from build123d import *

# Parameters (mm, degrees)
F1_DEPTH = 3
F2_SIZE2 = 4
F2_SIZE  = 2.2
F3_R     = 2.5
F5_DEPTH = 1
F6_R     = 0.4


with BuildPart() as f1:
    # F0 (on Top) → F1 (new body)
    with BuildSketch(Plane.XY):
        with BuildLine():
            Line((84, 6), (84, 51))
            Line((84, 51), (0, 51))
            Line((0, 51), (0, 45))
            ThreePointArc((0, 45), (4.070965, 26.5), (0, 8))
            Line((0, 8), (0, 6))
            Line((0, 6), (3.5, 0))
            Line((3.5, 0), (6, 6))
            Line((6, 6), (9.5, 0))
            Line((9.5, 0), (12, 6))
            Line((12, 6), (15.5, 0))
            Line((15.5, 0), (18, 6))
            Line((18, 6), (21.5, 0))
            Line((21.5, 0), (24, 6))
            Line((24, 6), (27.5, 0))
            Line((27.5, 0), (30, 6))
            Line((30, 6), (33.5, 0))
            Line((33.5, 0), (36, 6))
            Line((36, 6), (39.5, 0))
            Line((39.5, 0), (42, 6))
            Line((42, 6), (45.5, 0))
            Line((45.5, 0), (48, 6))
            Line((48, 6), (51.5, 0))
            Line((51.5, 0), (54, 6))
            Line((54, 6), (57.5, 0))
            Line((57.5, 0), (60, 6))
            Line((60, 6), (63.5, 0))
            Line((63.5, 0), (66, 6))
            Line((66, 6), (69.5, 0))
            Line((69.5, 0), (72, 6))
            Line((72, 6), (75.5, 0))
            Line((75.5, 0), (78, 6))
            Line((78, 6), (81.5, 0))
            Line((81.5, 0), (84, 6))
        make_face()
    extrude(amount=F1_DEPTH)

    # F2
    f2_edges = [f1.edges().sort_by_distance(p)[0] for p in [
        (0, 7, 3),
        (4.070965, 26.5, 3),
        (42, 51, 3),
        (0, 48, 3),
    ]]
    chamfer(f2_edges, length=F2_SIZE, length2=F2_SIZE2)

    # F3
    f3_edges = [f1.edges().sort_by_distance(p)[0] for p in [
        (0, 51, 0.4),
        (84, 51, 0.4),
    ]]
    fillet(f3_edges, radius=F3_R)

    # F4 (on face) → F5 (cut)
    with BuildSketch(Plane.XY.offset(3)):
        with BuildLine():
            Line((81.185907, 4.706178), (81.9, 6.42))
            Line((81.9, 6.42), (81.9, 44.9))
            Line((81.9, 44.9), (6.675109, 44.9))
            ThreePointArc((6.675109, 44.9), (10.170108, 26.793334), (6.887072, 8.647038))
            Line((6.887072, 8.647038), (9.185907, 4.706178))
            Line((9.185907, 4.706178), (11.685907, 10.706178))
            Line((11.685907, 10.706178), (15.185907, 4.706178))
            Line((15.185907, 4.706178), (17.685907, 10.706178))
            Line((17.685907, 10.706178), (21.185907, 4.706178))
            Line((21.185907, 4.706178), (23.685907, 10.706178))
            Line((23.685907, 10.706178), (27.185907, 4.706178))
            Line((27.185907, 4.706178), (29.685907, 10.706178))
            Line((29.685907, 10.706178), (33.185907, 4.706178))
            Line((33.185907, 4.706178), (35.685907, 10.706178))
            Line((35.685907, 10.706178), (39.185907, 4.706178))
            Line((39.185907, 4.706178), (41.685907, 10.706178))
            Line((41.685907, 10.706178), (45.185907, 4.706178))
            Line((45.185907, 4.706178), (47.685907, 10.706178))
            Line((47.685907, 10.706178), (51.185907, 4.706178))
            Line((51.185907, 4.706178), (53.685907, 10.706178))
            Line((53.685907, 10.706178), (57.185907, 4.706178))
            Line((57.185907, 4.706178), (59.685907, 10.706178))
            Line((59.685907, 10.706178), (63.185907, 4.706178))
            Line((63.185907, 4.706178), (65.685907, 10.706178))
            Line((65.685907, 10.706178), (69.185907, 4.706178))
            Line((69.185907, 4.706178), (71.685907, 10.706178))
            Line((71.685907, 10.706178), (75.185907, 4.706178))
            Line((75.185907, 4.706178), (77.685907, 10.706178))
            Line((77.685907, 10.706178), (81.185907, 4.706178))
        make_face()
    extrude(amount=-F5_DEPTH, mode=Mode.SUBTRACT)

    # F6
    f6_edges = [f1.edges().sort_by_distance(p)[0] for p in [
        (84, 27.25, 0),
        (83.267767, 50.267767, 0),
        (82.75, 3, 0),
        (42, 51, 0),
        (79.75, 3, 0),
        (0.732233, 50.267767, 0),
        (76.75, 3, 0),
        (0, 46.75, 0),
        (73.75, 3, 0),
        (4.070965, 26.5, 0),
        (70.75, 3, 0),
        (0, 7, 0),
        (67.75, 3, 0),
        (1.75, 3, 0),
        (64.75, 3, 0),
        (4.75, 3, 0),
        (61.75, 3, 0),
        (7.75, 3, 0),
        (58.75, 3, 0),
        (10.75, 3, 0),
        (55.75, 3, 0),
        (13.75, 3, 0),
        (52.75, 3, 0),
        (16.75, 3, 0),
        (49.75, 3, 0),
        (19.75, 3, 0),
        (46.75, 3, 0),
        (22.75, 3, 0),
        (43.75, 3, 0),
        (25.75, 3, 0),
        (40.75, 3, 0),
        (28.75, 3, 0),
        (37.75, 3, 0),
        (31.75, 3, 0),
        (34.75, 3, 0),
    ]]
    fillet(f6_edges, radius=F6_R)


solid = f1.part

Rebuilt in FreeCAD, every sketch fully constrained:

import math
import FreeCAD as App
import Part
import Sketcher

V = App.Vector
Q = App.Units.Quantity


def edges_at(feature, points):
    """Names of the edges that pass closest to the given points."""
    edges = feature.Shape.Edges
    near = lambda p: min(range(len(edges)), key=lambda i: edges[i].distToShape(Part.Vertex(*p))[0])
    return sorted({f"Edge{near(p) + 1}" for p in points})

doc = App.newDocument("Part")
body = doc.addObject("PartDesign::Body", "Body")

# Sketch on XY plane
sketch1 = body.newObject("Sketcher::SketchObject", "Sketch")
sketch1.AttachmentSupport = (doc.getObject("XY_Plane"), [""])
sketch1.MapMode = "FlatFace"
sketch1.addGeometry(Part.LineSegment(V(84, 6, 0), V(84, 51, 0)), False)
sketch1.addGeometry(Part.LineSegment(V(84, 51, 0), V(0, 51, 0)), False)
sketch1.addGeometry(Part.LineSegment(V(0, 51, 0), V(0, 45, 0)), False)
sketch1.addGeometry(Part.ArcOfCircle(Part.Circle(V(-40, 26.5, 0), V(0, 0, 1), 44.1), math.radians(-25), math.radians(25)), False)
sketch1.addGeometry(Part.LineSegment(V(0, 8, 0), V(0, 6, 0)), False)
sketch1.addGeometry(Part.LineSegment(V(0, 6, 0), V(3.5, 0, 0)), False)
sketch1.addGeometry(Part.LineSegment(V(3.5, 0, 0), V(6, 6, 0)), False)
sketch1.addGeometry(Part.LineSegment(V(6, 6, 0), V(9.5, 0, 0)), False)
sketch1.addGeometry(Part.LineSegment(V(9.5, 0, 0), V(12, 6, 0)), False)
sketch1.addGeometry(Part.LineSegment(V(12, 6, 0), V(15.5, 0, 0)), False)
sketch1.addGeometry(Part.LineSegment(V(15.5, 0, 0), V(18, 6, 0)), False)
sketch1.addGeometry(Part.LineSegment(V(18, 6, 0), V(21.5, 0, 0)), False)
sketch1.addGeometry(Part.LineSegment(V(21.5, 0, 0), V(24, 6, 0)), False)
sketch1.addGeometry(Part.LineSegment(V(24, 6, 0), V(27.5, 0, 0)), False)
sketch1.addGeometry(Part.LineSegment(V(27.5, 0, 0), V(30, 6, 0)), False)
sketch1.addGeometry(Part.LineSegment(V(30, 6, 0), V(33.5, 0, 0)), False)
sketch1.addGeometry(Part.LineSegment(V(33.5, 0, 0), V(36, 6, 0)), False)
sketch1.addGeometry(Part.LineSegment(V(36, 6, 0), V(39.5, 0, 0)), False)
sketch1.addGeometry(Part.LineSegment(V(39.5, 0, 0), V(42, 6, 0)), False)
sketch1.addGeometry(Part.LineSegment(V(42, 6, 0), V(45.5, 0, 0)), False)
sketch1.addGeometry(Part.LineSegment(V(45.5, 0, 0), V(48, 6, 0)), False)
sketch1.addGeometry(Part.LineSegment(V(48, 6, 0), V(51.5, 0, 0)), False)
sketch1.addGeometry(Part.LineSegment(V(51.5, 0, 0), V(54, 6, 0)), False)
sketch1.addGeometry(Part.LineSegment(V(54, 6, 0), V(57.5, 0, 0)), False)
sketch1.addGeometry(Part.LineSegment(V(57.5, 0, 0), V(60, 6, 0)), False)
sketch1.addGeometry(Part.LineSegment(V(60, 6, 0), V(63.5, 0, 0)), False)
sketch1.addGeometry(Part.LineSegment(V(63.5, 0, 0), V(66, 6, 0)), False)
sketch1.addGeometry(Part.LineSegment(V(66, 6, 0), V(69.5, 0, 0)), False)
sketch1.addGeometry(Part.LineSegment(V(69.5, 0, 0), V(72, 6, 0)), False)
sketch1.addGeometry(Part.LineSegment(V(72, 6, 0), V(75.5, 0, 0)), False)
sketch1.addGeometry(Part.LineSegment(V(75.5, 0, 0), V(78, 6, 0)), False)
sketch1.addGeometry(Part.LineSegment(V(78, 6, 0), V(81.5, 0, 0)), False)
sketch1.addGeometry(Part.LineSegment(V(81.5, 0, 0), V(84, 6, 0)), False)
sketch1.addConstraint(Sketcher.Constraint("Coincident", 0, 2, 1, 1))
sketch1.addConstraint(Sketcher.Constraint("Coincident", 1, 2, 2, 1))
sketch1.addConstraint(Sketcher.Constraint("Coincident", 2, 2, 3, 2))
sketch1.addConstraint(Sketcher.Constraint("Coincident", 3, 1, 4, 1))
sketch1.addConstraint(Sketcher.Constraint("Coincident", 4, 2, 5, 1))
sketch1.addConstraint(Sketcher.Constraint("Coincident", 5, 2, 6, 1))
sketch1.addConstraint(Sketcher.Constraint("Coincident", 6, 2, 7, 1))
sketch1.addConstraint(Sketcher.Constraint("Coincident", 7, 2, 8, 1))
sketch1.addConstraint(Sketcher.Constraint("Coincident", 8, 2, 9, 1))
sketch1.addConstraint(Sketcher.Constraint("Coincident", 9, 2, 10, 1))
sketch1.addConstraint(Sketcher.Constraint("Coincident", 10, 2, 11, 1))
sketch1.addConstraint(Sketcher.Constraint("Coincident", 11, 2, 12, 1))
sketch1.addConstraint(Sketcher.Constraint("Coincident", 12, 2, 13, 1))
sketch1.addConstraint(Sketcher.Constraint("Coincident", 13, 2, 14, 1))
sketch1.addConstraint(Sketcher.Constraint("Coincident", 14, 2, 15, 1))
sketch1.addConstraint(Sketcher.Constraint("Coincident", 15, 2, 16, 1))
sketch1.addConstraint(Sketcher.Constraint("Coincident", 16, 2, 17, 1))
sketch1.addConstraint(Sketcher.Constraint("Coincident", 17, 2, 18, 1))
sketch1.addConstraint(Sketcher.Constraint("Coincident", 18, 2, 19, 1))
sketch1.addConstraint(Sketcher.Constraint("Coincident", 19, 2, 20, 1))
sketch1.addConstraint(Sketcher.Constraint("Coincident", 20, 2, 21, 1))
sketch1.addConstraint(Sketcher.Constraint("Coincident", 21, 2, 22, 1))
sketch1.addConstraint(Sketcher.Constraint("Coincident", 22, 2, 23, 1))
sketch1.addConstraint(Sketcher.Constraint("Coincident", 23, 2, 24, 1))
sketch1.addConstraint(Sketcher.Constraint("Coincident", 24, 2, 25, 1))
sketch1.addConstraint(Sketcher.Constraint("Coincident", 25, 2, 26, 1))
sketch1.addConstraint(Sketcher.Constraint("Coincident", 26, 2, 27, 1))
sketch1.addConstraint(Sketcher.Constraint("Coincident", 27, 2, 28, 1))
sketch1.addConstraint(Sketcher.Constraint("Coincident", 28, 2, 29, 1))
sketch1.addConstraint(Sketcher.Constraint("Coincident", 29, 2, 30, 1))
sketch1.addConstraint(Sketcher.Constraint("Coincident", 30, 2, 31, 1))
sketch1.addConstraint(Sketcher.Constraint("Coincident", 31, 2, 32, 1))
sketch1.addConstraint(Sketcher.Constraint("Coincident", 32, 2, 0, 1))
sketch1.addConstraint(Sketcher.Constraint("Vertical", 0))
sketch1.addConstraint(Sketcher.Constraint("Horizontal", 1))
sketch1.addConstraint(Sketcher.Constraint("Vertical", 2))
sketch1.addConstraint(Sketcher.Constraint("Vertical", 4))
sketch1.addConstraint(Sketcher.Constraint("PointOnObject", 1, 2, -2))
sketch1.addConstraint(Sketcher.Constraint("PointOnObject", 3, 1, -2))
sketch1.addConstraint(Sketcher.Constraint("PointOnObject", 5, 2, -1))
sketch1.addConstraint(Sketcher.Constraint("PointOnObject", 7, 2, -1))
sketch1.addConstraint(Sketcher.Constraint("PointOnObject", 9, 2, -1))
sketch1.addConstraint(Sketcher.Constraint("PointOnObject", 11, 2, -1))
sketch1.addConstraint(Sketcher.Constraint("PointOnObject", 13, 2, -1))
sketch1.addConstraint(Sketcher.Constraint("PointOnObject", 15, 2, -1))
sketch1.addConstraint(Sketcher.Constraint("PointOnObject", 17, 2, -1))
sketch1.addConstraint(Sketcher.Constraint("PointOnObject", 19, 2, -1))
sketch1.addConstraint(Sketcher.Constraint("PointOnObject", 21, 2, -1))
sketch1.addConstraint(Sketcher.Constraint("PointOnObject", 23, 2, -1))
sketch1.addConstraint(Sketcher.Constraint("PointOnObject", 25, 2, -1))
sketch1.addConstraint(Sketcher.Constraint("PointOnObject", 27, 2, -1))
sketch1.addConstraint(Sketcher.Constraint("PointOnObject", 29, 2, -1))
sketch1.addConstraint(Sketcher.Constraint("PointOnObject", 31, 2, -1))
sketch1.addConstraint(Sketcher.Constraint("Parallel", 5, 7))
sketch1.addConstraint(Sketcher.Constraint("Parallel", 6, 8))
sketch1.addConstraint(Sketcher.Constraint("Parallel", 7, 9))
sketch1.addConstraint(Sketcher.Constraint("Parallel", 8, 10))
sketch1.addConstraint(Sketcher.Constraint("Parallel", 9, 11))
sketch1.addConstraint(Sketcher.Constraint("Parallel", 10, 12))
sketch1.addConstraint(Sketcher.Constraint("Parallel", 11, 13))
sketch1.addConstraint(Sketcher.Constraint("Parallel", 12, 14))
sketch1.addConstraint(Sketcher.Constraint("Parallel", 13, 15))
sketch1.addConstraint(Sketcher.Constraint("Parallel", 14, 16))
sketch1.addConstraint(Sketcher.Constraint("Parallel", 15, 17))
sketch1.addConstraint(Sketcher.Constraint("Parallel", 16, 18))
sketch1.addConstraint(Sketcher.Constraint("Parallel", 17, 19))
sketch1.addConstraint(Sketcher.Constraint("Parallel", 18, 20))
sketch1.addConstraint(Sketcher.Constraint("Parallel", 19, 21))
sketch1.addConstraint(Sketcher.Constraint("Parallel", 20, 22))
sketch1.addConstraint(Sketcher.Constraint("Parallel", 21, 23))
sketch1.addConstraint(Sketcher.Constraint("Parallel", 22, 24))
sketch1.addConstraint(Sketcher.Constraint("Parallel", 23, 25))
sketch1.addConstraint(Sketcher.Constraint("Parallel", 24, 26))
sketch1.addConstraint(Sketcher.Constraint("Parallel", 25, 27))
sketch1.addConstraint(Sketcher.Constraint("Parallel", 26, 28))
sketch1.addConstraint(Sketcher.Constraint("Parallel", 27, 29))
sketch1.addConstraint(Sketcher.Constraint("Parallel", 28, 30))
sketch1.addConstraint(Sketcher.Constraint("Parallel", 29, 31))
sketch1.addConstraint(Sketcher.Constraint("Parallel", 30, 32))
sketch1.addConstraint(Sketcher.Constraint("Horizontal", 4, 2, 6, 2))
sketch1.addConstraint(Sketcher.Constraint("Horizontal", 6, 2, 8, 2))
sketch1.addConstraint(Sketcher.Constraint("Horizontal", 8, 2, 10, 2))
sketch1.addConstraint(Sketcher.Constraint("Horizontal", 10, 2, 12, 2))
sketch1.addConstraint(Sketcher.Constraint("Horizontal", 12, 2, 14, 2))
sketch1.addConstraint(Sketcher.Constraint("Horizontal", 14, 2, 16, 2))
sketch1.addConstraint(Sketcher.Constraint("Horizontal", 16, 2, 18, 2))
sketch1.addConstraint(Sketcher.Constraint("Horizontal", 18, 2, 20, 2))
sketch1.addConstraint(Sketcher.Constraint("Horizontal", 20, 2, 22, 2))
sketch1.addConstraint(Sketcher.Constraint("Horizontal", 22, 2, 24, 2))
sketch1.addConstraint(Sketcher.Constraint("Horizontal", 24, 2, 26, 2))
sketch1.addConstraint(Sketcher.Constraint("Horizontal", 26, 2, 28, 2))
sketch1.addConstraint(Sketcher.Constraint("Horizontal", 28, 2, 30, 2))
sketch1.addConstraint(Sketcher.Constraint("Horizontal", 30, 2, 32, 2))
sketch1.addConstraint(Sketcher.Constraint("DistanceX", 1, 2, 1, 1, Q("84 mm")))
sketch1.addConstraint(Sketcher.Constraint("DistanceY", 0, 1, 0, 2, Q("45 mm")))
sketch1.addConstraint(Sketcher.Constraint("DistanceY", 2, 2, 2, 1, Q("6 mm")))
sketch1.addConstraint(Sketcher.Constraint("DistanceY", 4, 2, 4, 1, Q("2 mm")))
sketch1.addConstraint(Sketcher.Constraint("DistanceY", -1, 1, 0, 2, Q("51 mm")))
sketch1.addConstraint(Sketcher.Constraint("Distance", 6, Q("6.5 mm")))
sketch1.addConstraint(Sketcher.Constraint("Radius", 3, Q("44.07097 mm")))
pad1 = body.newObject("PartDesign::Pad", "Pad")
pad1.Profile = sketch1
pad1.Length = 3
doc.recompute()

chamfer = body.newObject("PartDesign::Chamfer", "Chamfer")
chamfer.Base = (pad1, edges_at(pad1, [
    (0, 7, 3),
    (4.071, 26.5, 3),
    (42, 51, 3),
    (0, 48, 3),
]))
chamfer.ChamferType = "Two distances"
chamfer.Size = 2.2
chamfer.Size2 = 4
doc.recompute()

fillet = body.newObject("PartDesign::Fillet", "Fillet")
fillet.Base = (chamfer, edges_at(chamfer, [(0, 51, 0.4), (84, 51, 0.4)]))
fillet.Radius = 2.5

# Sketch on XY plane
sketch2 = body.newObject("Sketcher::SketchObject", "Sketch001")
sketch2.AttachmentSupport = (doc.getObject("XY_Plane"), [""])
sketch2.MapMode = "FlatFace"
sketch2.AttachmentOffset = App.Placement(V(0, 0, 3), App.Rotation())
sketch2.addGeometry(Part.LineSegment(V(81.2, 4.7, 0), V(81.9, 6.4, 0)), False)
sketch2.addGeometry(Part.LineSegment(V(81.9, 6.4, 0), V(81.9, 44.9, 0)), False)
sketch2.addGeometry(Part.LineSegment(V(81.9, 44.9, 0), V(6.7, 44.9, 0)), False)
sketch2.addGeometry(Part.ArcOfCircle(Part.Circle(V(-40, 26.5, 0), V(0, 0, 1), 50.2), math.radians(-21), math.radians(22)), False)
sketch2.addGeometry(Part.LineSegment(V(6.9, 8.6, 0), V(9.2, 4.7, 0)), False)
sketch2.addGeometry(Part.LineSegment(V(9.2, 4.7, 0), V(11.7, 10.7, 0)), False)
sketch2.addGeometry(Part.LineSegment(V(11.7, 10.7, 0), V(15.2, 4.7, 0)), False)
sketch2.addGeometry(Part.LineSegment(V(15.2, 4.7, 0), V(17.7, 10.7, 0)), False)
sketch2.addGeometry(Part.LineSegment(V(17.7, 10.7, 0), V(21.2, 4.7, 0)), False)
sketch2.addGeometry(Part.LineSegment(V(21.2, 4.7, 0), V(23.7, 10.7, 0)), False)
sketch2.addGeometry(Part.LineSegment(V(23.7, 10.7, 0), V(27.2, 4.7, 0)), False)
sketch2.addGeometry(Part.LineSegment(V(27.2, 4.7, 0), V(29.7, 10.7, 0)), False)
sketch2.addGeometry(Part.LineSegment(V(29.7, 10.7, 0), V(33.2, 4.7, 0)), False)
sketch2.addGeometry(Part.LineSegment(V(33.2, 4.7, 0), V(35.7, 10.7, 0)), False)
sketch2.addGeometry(Part.LineSegment(V(35.7, 10.7, 0), V(39.2, 4.7, 0)), False)
sketch2.addGeometry(Part.LineSegment(V(39.2, 4.7, 0), V(41.7, 10.7, 0)), False)
sketch2.addGeometry(Part.LineSegment(V(41.7, 10.7, 0), V(45.2, 4.7, 0)), False)
sketch2.addGeometry(Part.LineSegment(V(45.2, 4.7, 0), V(47.7, 10.7, 0)), False)
sketch2.addGeometry(Part.LineSegment(V(47.7, 10.7, 0), V(51.2, 4.7, 0)), False)
sketch2.addGeometry(Part.LineSegment(V(51.2, 4.7, 0), V(53.7, 10.7, 0)), False)
sketch2.addGeometry(Part.LineSegment(V(53.7, 10.7, 0), V(57.2, 4.7, 0)), False)
sketch2.addGeometry(Part.LineSegment(V(57.2, 4.7, 0), V(59.7, 10.7, 0)), False)
sketch2.addGeometry(Part.LineSegment(V(59.7, 10.7, 0), V(63.2, 4.7, 0)), False)
sketch2.addGeometry(Part.LineSegment(V(63.2, 4.7, 0), V(65.7, 10.7, 0)), False)
sketch2.addGeometry(Part.LineSegment(V(65.7, 10.7, 0), V(69.2, 4.7, 0)), False)
sketch2.addGeometry(Part.LineSegment(V(69.2, 4.7, 0), V(71.7, 10.7, 0)), False)
sketch2.addGeometry(Part.LineSegment(V(71.7, 10.7, 0), V(75.2, 4.7, 0)), False)
sketch2.addGeometry(Part.LineSegment(V(75.2, 4.7, 0), V(77.7, 10.7, 0)), False)
sketch2.addGeometry(Part.LineSegment(V(77.7, 10.7, 0), V(81.2, 4.7, 0)), False)
sketch2.addConstraint(Sketcher.Constraint("Coincident", 0, 2, 1, 1))
sketch2.addConstraint(Sketcher.Constraint("Coincident", 1, 2, 2, 1))
sketch2.addConstraint(Sketcher.Constraint("Coincident", 2, 2, 3, 2))
sketch2.addConstraint(Sketcher.Constraint("Coincident", 3, 1, 4, 1))
sketch2.addConstraint(Sketcher.Constraint("Coincident", 4, 2, 5, 1))
sketch2.addConstraint(Sketcher.Constraint("Coincident", 5, 2, 6, 1))
sketch2.addConstraint(Sketcher.Constraint("Coincident", 6, 2, 7, 1))
sketch2.addConstraint(Sketcher.Constraint("Coincident", 7, 2, 8, 1))
sketch2.addConstraint(Sketcher.Constraint("Coincident", 8, 2, 9, 1))
sketch2.addConstraint(Sketcher.Constraint("Coincident", 9, 2, 10, 1))
sketch2.addConstraint(Sketcher.Constraint("Coincident", 10, 2, 11, 1))
sketch2.addConstraint(Sketcher.Constraint("Coincident", 11, 2, 12, 1))
sketch2.addConstraint(Sketcher.Constraint("Coincident", 12, 2, 13, 1))
sketch2.addConstraint(Sketcher.Constraint("Coincident", 13, 2, 14, 1))
sketch2.addConstraint(Sketcher.Constraint("Coincident", 14, 2, 15, 1))
sketch2.addConstraint(Sketcher.Constraint("Coincident", 15, 2, 16, 1))
sketch2.addConstraint(Sketcher.Constraint("Coincident", 16, 2, 17, 1))
sketch2.addConstraint(Sketcher.Constraint("Coincident", 17, 2, 18, 1))
sketch2.addConstraint(Sketcher.Constraint("Coincident", 18, 2, 19, 1))
sketch2.addConstraint(Sketcher.Constraint("Coincident", 19, 2, 20, 1))
sketch2.addConstraint(Sketcher.Constraint("Coincident", 20, 2, 21, 1))
sketch2.addConstraint(Sketcher.Constraint("Coincident", 21, 2, 22, 1))
sketch2.addConstraint(Sketcher.Constraint("Coincident", 22, 2, 23, 1))
sketch2.addConstraint(Sketcher.Constraint("Coincident", 23, 2, 24, 1))
sketch2.addConstraint(Sketcher.Constraint("Coincident", 24, 2, 25, 1))
sketch2.addConstraint(Sketcher.Constraint("Coincident", 25, 2, 26, 1))
sketch2.addConstraint(Sketcher.Constraint("Coincident", 26, 2, 27, 1))
sketch2.addConstraint(Sketcher.Constraint("Coincident", 27, 2, 28, 1))
sketch2.addConstraint(Sketcher.Constraint("Coincident", 28, 2, 0, 1))
sketch2.addConstraint(Sketcher.Constraint("Vertical", 1))
sketch2.addConstraint(Sketcher.Constraint("Horizontal", 2))
sketch2.addConstraint(Sketcher.Constraint("Parallel", 0, 5))
sketch2.addConstraint(Sketcher.Constraint("Parallel", 4, 6))
sketch2.addConstraint(Sketcher.Constraint("Parallel", 5, 7))
sketch2.addConstraint(Sketcher.Constraint("Parallel", 6, 8))
sketch2.addConstraint(Sketcher.Constraint("Parallel", 7, 9))
sketch2.addConstraint(Sketcher.Constraint("Parallel", 8, 10))
sketch2.addConstraint(Sketcher.Constraint("Parallel", 9, 11))
sketch2.addConstraint(Sketcher.Constraint("Parallel", 10, 12))
sketch2.addConstraint(Sketcher.Constraint("Parallel", 11, 13))
sketch2.addConstraint(Sketcher.Constraint("Parallel", 12, 14))
sketch2.addConstraint(Sketcher.Constraint("Parallel", 13, 15))
sketch2.addConstraint(Sketcher.Constraint("Parallel", 14, 16))
sketch2.addConstraint(Sketcher.Constraint("Parallel", 15, 17))
sketch2.addConstraint(Sketcher.Constraint("Parallel", 16, 18))
sketch2.addConstraint(Sketcher.Constraint("Parallel", 17, 19))
sketch2.addConstraint(Sketcher.Constraint("Parallel", 18, 20))
sketch2.addConstraint(Sketcher.Constraint("Parallel", 19, 21))
sketch2.addConstraint(Sketcher.Constraint("Parallel", 20, 22))
sketch2.addConstraint(Sketcher.Constraint("Parallel", 21, 23))
sketch2.addConstraint(Sketcher.Constraint("Parallel", 22, 24))
sketch2.addConstraint(Sketcher.Constraint("Parallel", 23, 25))
sketch2.addConstraint(Sketcher.Constraint("Parallel", 24, 26))
sketch2.addConstraint(Sketcher.Constraint("Parallel", 25, 27))
sketch2.addConstraint(Sketcher.Constraint("Parallel", 26, 28))
sketch2.addConstraint(Sketcher.Constraint("Horizontal", 4, 2, 6, 2))
sketch2.addConstraint(Sketcher.Constraint("Horizontal", 5, 2, 7, 2))
sketch2.addConstraint(Sketcher.Constraint("Horizontal", 6, 2, 8, 2))
sketch2.addConstraint(Sketcher.Constraint("Horizontal", 7, 2, 9, 2))
sketch2.addConstraint(Sketcher.Constraint("Horizontal", 8, 2, 10, 2))
sketch2.addConstraint(Sketcher.Constraint("Horizontal", 9, 2, 11, 2))
sketch2.addConstraint(Sketcher.Constraint("Horizontal", 10, 2, 12, 2))
sketch2.addConstraint(Sketcher.Constraint("Horizontal", 11, 2, 13, 2))
sketch2.addConstraint(Sketcher.Constraint("Horizontal", 12, 2, 14, 2))
sketch2.addConstraint(Sketcher.Constraint("Horizontal", 13, 2, 15, 2))
sketch2.addConstraint(Sketcher.Constraint("Horizontal", 14, 2, 16, 2))
sketch2.addConstraint(Sketcher.Constraint("Horizontal", 15, 2, 17, 2))
sketch2.addConstraint(Sketcher.Constraint("Horizontal", 16, 2, 18, 2))
sketch2.addConstraint(Sketcher.Constraint("Horizontal", 17, 2, 19, 2))
sketch2.addConstraint(Sketcher.Constraint("Horizontal", 18, 2, 20, 2))
sketch2.addConstraint(Sketcher.Constraint("Horizontal", 19, 2, 21, 2))
sketch2.addConstraint(Sketcher.Constraint("Horizontal", 20, 2, 22, 2))
sketch2.addConstraint(Sketcher.Constraint("Horizontal", 21, 2, 23, 2))
sketch2.addConstraint(Sketcher.Constraint("Horizontal", 22, 2, 24, 2))
sketch2.addConstraint(Sketcher.Constraint("Horizontal", 23, 2, 25, 2))
sketch2.addConstraint(Sketcher.Constraint("Horizontal", 24, 2, 26, 2))
sketch2.addConstraint(Sketcher.Constraint("Horizontal", 25, 2, 27, 2))
sketch2.addConstraint(Sketcher.Constraint("Horizontal", 26, 2, 28, 2))
sketch2.addConstraint(Sketcher.Constraint("DistanceX", 3, 3, -1, 1, Q("40.000001 mm")))
sketch2.addConstraint(Sketcher.Constraint("DistanceY", 4, 2, 5, 2, Q("6 mm")))
sketch2.addConstraint(Sketcher.Constraint("DistanceX", 4, 2, 6, 2, Q("6 mm")))
sketch2.addConstraint(Sketcher.Constraint("Distance", 5, Q("6.5 mm")))
sketch2.addConstraint(Sketcher.Constraint("DistanceY", 1, 1, 1, 2, Q("38.48 mm")))
sketch2.addConstraint(Sketcher.Constraint("DistanceY", -1, 1, 3, 3, Q("26.5 mm")))
sketch2.addConstraint(Sketcher.Constraint("DistanceX", -1, 1, 0, 2, Q("81.9 mm")))
sketch2.addConstraint(Sketcher.Constraint("DistanceY", -1, 1, 1, 2, Q("44.9 mm")))
sketch2.addConstraint(Sketcher.Constraint("Radius", 3, Q("50.170966 mm")))
sketch2.addConstraint(Sketcher.Constraint("DistanceX", 2, 2, 4, 2, Q("2.510798 mm")))
pocket1 = body.newObject("PartDesign::Pocket", "Pocket")
pocket1.Profile = sketch2
pocket1.Length = 1
doc.recompute()

fillet2 = body.newObject("PartDesign::Fillet", "Fillet001")
fillet2.Base = (pocket1, edges_at(pocket1, [
    (84, 27.25, 0),
    (83.268, 50.268, 0),
    (82.75, 3, 0),
    (42, 51, 0),
    (79.75, 3, 0),
    (0.732, 50.268, 0),
    (76.75, 3, 0),
    (0, 46.75, 0),
    (73.75, 3, 0),
    (4.071, 26.5, 0),
    (70.75, 3, 0),
    (0, 7, 0),
    (67.75, 3, 0),
    (1.75, 3, 0),
    (64.75, 3, 0),
    (4.75, 3, 0),
    (61.75, 3, 0),
    (7.75, 3, 0),
    (58.75, 3, 0),
    (10.75, 3, 0),
    (55.75, 3, 0),
    (13.75, 3, 0),
    (52.75, 3, 0),
    (16.75, 3, 0),
    (49.75, 3, 0),
    (19.75, 3, 0),
    (46.75, 3, 0),
    (22.75, 3, 0),
    (43.75, 3, 0),
    (25.75, 3, 0),
    (40.75, 3, 0),
    (28.75, 3, 0),
    (37.75, 3, 0),
    (31.75, 3, 0),
    (34.75, 3, 0),
]))
fillet2.Radius = 0.4

doc.recompute()
